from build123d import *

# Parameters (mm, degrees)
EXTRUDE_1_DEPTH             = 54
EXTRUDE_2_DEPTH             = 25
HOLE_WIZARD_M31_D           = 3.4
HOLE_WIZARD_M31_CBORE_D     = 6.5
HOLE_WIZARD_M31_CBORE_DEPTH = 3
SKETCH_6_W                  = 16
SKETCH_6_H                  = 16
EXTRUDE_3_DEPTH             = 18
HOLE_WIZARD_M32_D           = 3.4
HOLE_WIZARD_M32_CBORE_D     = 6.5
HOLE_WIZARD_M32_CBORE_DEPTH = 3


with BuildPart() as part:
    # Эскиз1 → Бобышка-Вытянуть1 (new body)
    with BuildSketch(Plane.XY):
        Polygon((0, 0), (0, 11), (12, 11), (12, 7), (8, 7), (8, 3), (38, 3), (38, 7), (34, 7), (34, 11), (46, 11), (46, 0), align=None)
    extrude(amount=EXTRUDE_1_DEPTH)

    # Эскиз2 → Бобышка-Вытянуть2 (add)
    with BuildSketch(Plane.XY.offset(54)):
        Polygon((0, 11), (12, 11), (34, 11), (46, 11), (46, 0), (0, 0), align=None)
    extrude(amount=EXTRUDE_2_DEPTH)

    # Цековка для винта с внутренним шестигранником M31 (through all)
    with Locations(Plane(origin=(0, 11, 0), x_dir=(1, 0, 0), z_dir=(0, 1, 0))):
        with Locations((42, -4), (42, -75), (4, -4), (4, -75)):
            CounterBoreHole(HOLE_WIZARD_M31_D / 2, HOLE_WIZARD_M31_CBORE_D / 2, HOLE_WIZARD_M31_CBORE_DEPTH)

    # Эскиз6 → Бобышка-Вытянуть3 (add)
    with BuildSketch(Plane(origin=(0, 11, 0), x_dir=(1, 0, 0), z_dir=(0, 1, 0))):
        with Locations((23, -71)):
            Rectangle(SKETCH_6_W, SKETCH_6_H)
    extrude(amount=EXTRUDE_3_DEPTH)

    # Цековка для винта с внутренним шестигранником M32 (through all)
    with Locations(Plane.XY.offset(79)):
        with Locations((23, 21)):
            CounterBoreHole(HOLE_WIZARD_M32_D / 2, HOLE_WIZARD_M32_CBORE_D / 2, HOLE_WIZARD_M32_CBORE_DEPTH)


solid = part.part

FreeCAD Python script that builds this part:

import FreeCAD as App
import Part
import Sketcher

V = App.Vector
Q = App.Units.Quantity

doc = App.newDocument("Part")
body = doc.addObject("PartDesign::Body", "Body")

sketch1 = body.newObject("Sketcher::SketchObject", "Sketch")
sketch1.AttachmentSupport = (doc.getObject("XY_Plane"), [""])
sketch1.MapMode = "FlatFace"
sketch1.addGeometry(Part.LineSegment(V(0, 11, 0), V(0, 0, 0)), False)
sketch1.addGeometry(Part.LineSegment(V(0, 0, 0), V(46, 0, 0)), False)
sketch1.addGeometry(Part.LineSegment(V(46, 0, 0), V(46, 11, 0)), False)
sketch1.addGeometry(Part.LineSegment(V(46, 11, 0), V(34, 11, 0)), False)
sketch1.addGeometry(Part.LineSegment(V(34, 11, 0), V(34, 7, 0)), False)
sketch1.addGeometry(Part.LineSegment(V(34, 7, 0), V(38, 7, 0)), False)
sketch1.addGeometry(Part.LineSegment(V(38, 7, 0), V(38, 3, 0)), False)
sketch1.addGeometry(Part.LineSegment(V(38, 3, 0), V(8, 3, 0)), False)
sketch1.addGeometry(Part.LineSegment(V(8, 3, 0), V(8, 7, 0)), False)
sketch1.addGeometry(Part.LineSegment(V(8, 7, 0), V(12, 7, 0)), False)
sketch1.addGeometry(Part.LineSegment(V(12, 7, 0), V(12, 11, 0)), False)
sketch1.addGeometry(Part.LineSegment(V(12, 11, 0), V(0, 11, 0)), False)
sketch1.addConstraint(Sketcher.Constraint("Coincident", 0, 2, 1, 1))
sketch1.addConstraint(Sketcher.Constraint("Coincident", 1, 2, 2, 1))
sketch1.addConstraint(Sketcher.Constraint("Coincident", 2, 2, 3, 1))
sketch1.addConstraint(Sketcher.Constraint("Coincident", 3, 2, 4, 1))
sketch1.addConstraint(Sketcher.Constraint("Coincident", 4, 2, 5, 1))
sketch1.addConstraint(Sketcher.Constraint("Coincident", 5, 2, 6, 1))
sketch1.addConstraint(Sketcher.Constraint("Coincident", 6, 2, 7, 1))
sketch1.addConstraint(Sketcher.Constraint("Coincident", 7, 2, 8, 1))
sketch1.addConstraint(Sketcher.Constraint("Coincident", 8, 2, 9, 1))
sketch1.addConstraint(Sketcher.Constraint("Coincident", 9, 2, 10, 1))
sketch1.addConstraint(Sketcher.Constraint("Coincident", 10, 2, 11, 1))
sketch1.addConstraint(Sketcher.Constraint("Coincident", 11, 2, 0, 1))
sketch1.addConstraint(Sketcher.Constraint("Vertical", 0))
sketch1.addConstraint(Sketcher.Constraint("Horizontal", 1))
sketch1.addConstraint(Sketcher.Constraint("Vertical", 2))
sketch1.addConstraint(Sketcher.Constraint("Horizontal", 3))
sketch1.addConstraint(Sketcher.Constraint("Vertical", 4))
sketch1.addConstraint(Sketcher.Constraint("Horizontal", 5))
sketch1.addConstraint(Sketcher.Constraint("Vertical", 6))
sketch1.addConstraint(Sketcher.Constraint("Horizontal", 7))
sketch1.addConstraint(Sketcher.Constraint("Vertical", 8))
sketch1.addConstraint(Sketcher.Constraint("Horizontal", 9))
sketch1.addConstraint(Sketcher.Constraint("Vertical", 10))
sketch1.addConstraint(Sketcher.Constraint("Horizontal", 11))
sketch1.addConstraint(Sketcher.Constraint("Coincident", 0, 2, -1, 1))
sketch1.addConstraint(Sketcher.Constraint("Horizontal", 5, 2, 8, 2))
sketch1.addConstraint(Sketcher.Constraint("Horizontal", 3, 2, 10, 2))
sketch1.addConstraint(Sketcher.Constraint("Equal", 5, 9))
sketch1.addConstraint(Sketcher.Constraint("Equal", 3, 11))
sketch1.addConstraint(Sketcher.Constraint("Equal", 9, 4))
sketch1.addConstraint(Sketcher.Constraint("Equal", 4, 6))
sketch1.addConstraint(Sketcher.Constraint("DistanceX", 1, 1, 1, 2, Q("46 mm")))
sketch1.addConstraint(Sketcher.Constraint("DistanceX", 3, 2, 3, 1, Q("12 mm")))
sketch1.addConstraint(Sketcher.Constraint("DistanceX", 5, 1, 5, 2, Q("4 mm")))
sketch1.addConstraint(Sketcher.Constraint("DistanceY", 0, 2, 0, 1, Q("11 mm")))
pad1 = body.newObject("PartDesign::Pad", "Pad")
pad1.Profile = sketch1
pad1.Length = 54

sketch2 = body.newObject("Sketcher::SketchObject", "Sketch001")
sketch2.AttachmentSupport = (doc.getObject("XY_Plane"), [""])
sketch2.MapMode = "FlatFace"
sketch2.AttachmentOffset = App.Placement(V(0, 0, 54), App.Rotation())
sketch2.addGeometry(Part.LineSegment(V(46, 11, 0), V(0, 11, 0)), False)
sketch2.addGeometry(Part.LineSegment(V(0, 11, 0), V(0, 0, 0)), False)
sketch2.addGeometry(Part.LineSegment(V(0, 0, 0), V(46, 0, 0)), False)
sketch2.addGeometry(Part.LineSegment(V(46, 0, 0), V(46, 11, 0)), False)
sketch2.addConstraint(Sketcher.Constraint("Coincident", 0, 2, 1, 1))
sketch2.addConstraint(Sketcher.Constraint("Coincident", 1, 2, 2, 1))
sketch2.addConstraint(Sketcher.Constraint("Coincident", 2, 2, 3, 1))
sketch2.addConstraint(Sketcher.Constraint("Coincident", 3, 2, 0, 1))
sketch2.addConstraint(Sketcher.Constraint("Horizontal", 0))
sketch2.addConstraint(Sketcher.Constraint("Vertical", 1))
sketch2.addConstraint(Sketcher.Constraint("Horizontal", 2))
sketch2.addConstraint(Sketcher.Constraint("Vertical", 3))
sketch2.addConstraint(Sketcher.Constraint("Coincident", 1, 2, -1, 1))
sketch2.addConstraint(Sketcher.Constraint("DistanceX", 0, 2, 0, 1, Q("46 mm")))
sketch2.addConstraint(Sketcher.Constraint("DistanceY", 1, 2, 1, 1, Q("11 mm")))
pad2 = body.newObject("PartDesign::Pad", "Pad001")
pad2.Profile = sketch2
pad2.Length = 25

sketch3 = body.newObject("Sketcher::SketchObject", "Sketch002")
sketch3.AttachmentSupport = (doc.getObject("XZ_Plane"), [""])
sketch3.MapMode = "FlatFace"
sketch3.AttachmentOffset = App.Placement(V(0, 0, -11), App.Rotation())
sketch3.addGeometry(Part.Circle(V(42, 4, 0), V(0, 0, 1), 1.7), False)
sketch3.addGeometry(Part.Circle(V(42, 75, 0), V(0, 0, 1), 1.7), False)
sketch3.addGeometry(Part.Circle(V(4, 4, 0), V(0, 0, 1), 1.7), False)
sketch3.addGeometry(Part.Circle(V(4, 75, 0), V(0, 0, 1), 1.7), False)
sketch3.addConstraint(Sketcher.Constraint("Equal", 0, 1))
sketch3.addConstraint(Sketcher.Constraint("Equal", 1, 2))
sketch3.addConstraint(Sketcher.Constraint("Equal", 2, 3))
sketch3.addConstraint(Sketcher.Constraint("Horizontal", 0, 3, 2, 3))
sketch3.addConstraint(Sketcher.Constraint("Horizontal", 1, 3, 3, 3))
sketch3.addConstraint(Sketcher.Constraint("Vertical", 0, 3, 1, 3))
sketch3.addConstraint(Sketcher.Constraint("Vertical", 2, 3, 3, 3))
sketch3.addConstraint(Sketcher.Constraint("Diameter", 0, Q("3.4 mm")))
sketch3.addConstraint(Sketcher.Constraint("DistanceX", -1, 1, 0, 3, Q("42 mm")))
sketch3.addConstraint(Sketcher.Constraint("DistanceY", -1, 1, 0, 3, Q("4 mm")))
sketch3.addConstraint(Sketcher.Constraint("DistanceY", -1, 1, 1, 3, Q("75 mm")))
sketch3.addConstraint(Sketcher.Constraint("DistanceX", -1, 1, 2, 3, Q("4 mm")))
doc.recompute()
hole = body.newObject("PartDesign::Hole", "Hole")
hole.Profile = sketch3
hole.ThreadType = "None"
hole.Diameter = 3.4
hole.DepthType = "ThroughAll"
hole.HoleCutType = "Counterbore"
hole.HoleCutDiameter = 6.5
hole.HoleCutDepth = 3
hole.Reversed = True

sketch4 = body.newObject("Sketcher::SketchObject", "Sketch003")
sketch4.AttachmentSupport = (doc.getObject("XZ_Plane"), [""])
sketch4.MapMode = "FlatFace"
sketch4.AttachmentOffset = App.Placement(V(0, 0, -11), App.Rotation())
sketch4.addGeometry(Part.LineSegment(V(15, 63, 0), V(15, 79, 0)), False)
sketch4.addGeometry(Part.LineSegment(V(15, 79, 0), V(31, 79, 0)), False)
sketch4.addGeometry(Part.LineSegment(V(31, 79, 0), V(31, 63, 0)), False)
sketch4.addGeometry(Part.LineSegment(V(31, 63, 0), V(15, 63, 0)), False)
sketch4.addConstraint(Sketcher.Constraint("Coincident", 0, 2, 1, 1))
sketch4.addConstraint(Sketcher.Constraint("Coincident", 1, 2, 2, 1))
sketch4.addConstraint(Sketcher.Constraint("Coincident", 2, 2, 3, 1))
sketch4.addConstraint(Sketcher.Constraint("Coincident", 3, 2, 0, 1))
sketch4.addConstraint(Sketcher.Constraint("Vertical", 0))
sketch4.addConstraint(Sketcher.Constraint("Horizontal", 1))
sketch4.addConstraint(Sketcher.Constraint("Vertical", 2))
sketch4.addConstraint(Sketcher.Constraint("Horizontal", 3))
sketch4.addConstraint(Sketcher.Constraint("Equal", 3, 0))
sketch4.addConstraint(Sketcher.Constraint("DistanceX", 1, 1, 1, 2, Q("16 mm")))
sketch4.addConstraint(Sketcher.Constraint("DistanceX", -1, 1, 0, 2, Q("15 mm")))
sketch4.addConstraint(Sketcher.Constraint("DistanceY", -1, 1, 0, 2, Q("79 mm")))
pad3 = body.newObject("PartDesign::Pad", "Pad002")
pad3.Profile = sketch4
pad3.Length = 18
pad3.Reversed = True

sketch5 = body.newObject("Sketcher::SketchObject", "Sketch004")
sketch5.AttachmentSupport = (doc.getObject("XY_Plane"), [""])
sketch5.MapMode = "FlatFace"
sketch5.AttachmentOffset = App.Placement(V(0, 0, 79), App.Rotation())
sketch5.addGeometry(Part.Circle(V(23, 21, 0), V(0, 0, 1), 1.7), False)
sketch5.addConstraint(Sketcher.Constraint("Diameter", 0, Q("3.4 mm")))
sketch5.addConstraint(Sketcher.Constraint("DistanceX", -1, 1, 0, 3, Q("23 mm")))
sketch5.addConstraint(Sketcher.Constraint("DistanceY", -1, 1, 0, 3, Q("21 mm")))
doc.recompute()
hole2 = body.newObject("PartDesign::Hole", "Hole001")
hole2.Profile = sketch5
hole2.ThreadType = "None"
hole2.Diameter = 3.4
hole2.DepthType = "ThroughAll"
hole2.HoleCutType = "Counterbore"
hole2.HoleCutDiameter = 6.5
hole2.HoleCutDepth = 3

doc.recompute()
